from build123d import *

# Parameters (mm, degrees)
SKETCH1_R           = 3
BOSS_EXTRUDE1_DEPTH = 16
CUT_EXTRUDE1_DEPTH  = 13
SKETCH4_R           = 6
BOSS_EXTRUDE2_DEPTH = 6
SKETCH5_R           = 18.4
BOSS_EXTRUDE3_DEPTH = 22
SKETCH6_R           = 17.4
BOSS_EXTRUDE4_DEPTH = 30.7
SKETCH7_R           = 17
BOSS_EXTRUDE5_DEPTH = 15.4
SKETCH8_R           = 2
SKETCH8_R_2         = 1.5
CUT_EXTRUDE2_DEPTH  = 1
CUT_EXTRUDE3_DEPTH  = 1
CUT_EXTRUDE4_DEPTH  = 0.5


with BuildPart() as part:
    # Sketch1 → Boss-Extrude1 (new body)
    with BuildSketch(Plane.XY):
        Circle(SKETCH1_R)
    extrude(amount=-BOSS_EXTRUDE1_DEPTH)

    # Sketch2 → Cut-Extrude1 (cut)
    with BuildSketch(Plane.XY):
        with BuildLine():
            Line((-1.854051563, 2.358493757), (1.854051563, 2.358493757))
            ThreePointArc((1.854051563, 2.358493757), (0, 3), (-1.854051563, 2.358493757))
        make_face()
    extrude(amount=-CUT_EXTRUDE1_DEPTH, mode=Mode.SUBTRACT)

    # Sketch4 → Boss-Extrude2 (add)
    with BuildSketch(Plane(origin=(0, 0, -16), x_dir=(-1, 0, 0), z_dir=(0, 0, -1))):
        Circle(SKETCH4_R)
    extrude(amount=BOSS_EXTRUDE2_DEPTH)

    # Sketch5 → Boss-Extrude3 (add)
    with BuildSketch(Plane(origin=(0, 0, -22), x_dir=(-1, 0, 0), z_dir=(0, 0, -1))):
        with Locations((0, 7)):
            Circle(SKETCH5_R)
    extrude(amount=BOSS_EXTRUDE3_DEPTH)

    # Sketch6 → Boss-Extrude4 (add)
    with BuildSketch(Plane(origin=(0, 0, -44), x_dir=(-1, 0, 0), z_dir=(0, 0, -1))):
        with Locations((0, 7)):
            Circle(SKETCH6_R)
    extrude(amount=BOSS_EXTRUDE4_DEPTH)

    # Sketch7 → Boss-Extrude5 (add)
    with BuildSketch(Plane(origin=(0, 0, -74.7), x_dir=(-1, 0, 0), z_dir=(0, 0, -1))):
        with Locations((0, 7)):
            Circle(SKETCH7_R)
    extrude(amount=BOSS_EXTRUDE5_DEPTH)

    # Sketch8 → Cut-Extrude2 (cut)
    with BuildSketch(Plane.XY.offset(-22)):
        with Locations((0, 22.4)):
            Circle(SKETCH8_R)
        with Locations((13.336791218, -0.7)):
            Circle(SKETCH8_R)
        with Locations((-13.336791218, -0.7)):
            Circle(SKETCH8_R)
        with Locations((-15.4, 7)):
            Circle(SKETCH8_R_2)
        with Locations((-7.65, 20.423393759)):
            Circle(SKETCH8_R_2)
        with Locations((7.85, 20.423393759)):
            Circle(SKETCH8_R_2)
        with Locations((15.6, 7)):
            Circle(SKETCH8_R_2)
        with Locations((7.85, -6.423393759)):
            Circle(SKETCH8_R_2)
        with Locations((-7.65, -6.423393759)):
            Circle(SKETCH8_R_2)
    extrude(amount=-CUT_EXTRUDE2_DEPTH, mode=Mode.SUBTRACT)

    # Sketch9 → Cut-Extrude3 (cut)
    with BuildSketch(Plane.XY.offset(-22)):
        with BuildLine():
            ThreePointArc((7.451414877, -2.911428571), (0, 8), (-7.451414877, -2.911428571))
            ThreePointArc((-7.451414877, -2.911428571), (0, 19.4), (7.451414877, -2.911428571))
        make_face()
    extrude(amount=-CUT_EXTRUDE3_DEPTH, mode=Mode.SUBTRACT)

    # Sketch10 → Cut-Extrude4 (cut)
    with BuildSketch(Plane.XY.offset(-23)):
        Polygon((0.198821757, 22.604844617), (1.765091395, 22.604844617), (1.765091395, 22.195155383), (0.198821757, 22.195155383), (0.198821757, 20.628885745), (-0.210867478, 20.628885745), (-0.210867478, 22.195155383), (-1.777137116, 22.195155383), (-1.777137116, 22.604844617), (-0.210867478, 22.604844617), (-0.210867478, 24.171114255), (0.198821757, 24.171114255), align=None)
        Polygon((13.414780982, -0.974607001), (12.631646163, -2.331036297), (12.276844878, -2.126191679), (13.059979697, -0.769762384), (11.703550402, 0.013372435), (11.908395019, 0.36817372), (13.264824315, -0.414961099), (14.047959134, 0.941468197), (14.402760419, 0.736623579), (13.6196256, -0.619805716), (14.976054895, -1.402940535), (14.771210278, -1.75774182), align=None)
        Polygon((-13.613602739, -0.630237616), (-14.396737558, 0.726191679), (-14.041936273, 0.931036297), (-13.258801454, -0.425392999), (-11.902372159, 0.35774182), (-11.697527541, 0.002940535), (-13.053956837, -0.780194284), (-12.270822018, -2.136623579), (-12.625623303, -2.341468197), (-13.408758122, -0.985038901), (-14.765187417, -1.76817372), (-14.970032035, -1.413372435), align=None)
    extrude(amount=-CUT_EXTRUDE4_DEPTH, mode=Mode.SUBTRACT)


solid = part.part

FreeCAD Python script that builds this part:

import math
import FreeCAD as App
import Part
import Sketcher
from FreeCAD import Vector
Q = App.Units.Quantity


def add_polygon(sketch, points):
    """Adds a closed chain of lines whose ends are joined by coincident constraints."""
    first, n = sketch.GeometryCount, len(points)
    for a, b in zip(points, points[1:] + points[:1]):
        sketch.addGeometry(Part.LineSegment(App.Vector(*a, 0), App.Vector(*b, 0)), False)
    for i in range(n):
        sketch.addConstraint(Sketcher.Constraint("Coincident", first + i, 2, first + (i + 1) % n, 1))

doc = App.newDocument("Part")
body = doc.addObject("PartDesign::Body", "Body")

sketch1 = body.newObject("Sketcher::SketchObject", "Sketch")
sketch1.AttachmentSupport = (doc.getObject("XY_Plane"), [""])
sketch1.MapMode = "FlatFace"
sketch1.addGeometry(Part.Circle(Vector(0, 0, 0), Vector(0, 0, 1), 3), False)
sketch1.addConstraint([
    Sketcher.Constraint("Coincident", 0, 3, -1, 1),
    Sketcher.Constraint("Diameter", 0, Q("6 mm")),
])
pad1 = body.newObject("PartDesign::Pad", "Pad")
pad1.Profile = sketch1
pad1.Length = 16
pad1.Reversed = True

sketch2 = body.newObject("Sketcher::SketchObject", "Sketch001")
sketch2.AttachmentSupport = (doc.getObject("XY_Plane"), [""])
sketch2.MapMode = "FlatFace"
sketch2.addGeometry([
    Part.LineSegment(Vector(-1.9, 2.4, 0), Vector(1.9, 2.4, 0)),
    Part.ArcOfCircle(Part.Circle(Vector(0, 0, 0), Vector(0, 0, 1), 3), math.radians(52), math.radians(128)),
], False)
sketch2.addConstraint([
    Sketcher.Constraint("Coincident", 0, 1, 1, 2),
    Sketcher.Constraint("Coincident", 1, 1, 0, 2),
    Sketcher.Constraint("Horizontal", 0),
    Sketcher.Constraint("Coincident", 1, 3, -1, 1),
    Sketcher.Constraint("Radius", 1, Q("3 mm")),
    Sketcher.Constraint("DistanceX", 0, 1, 0, 2, Q("3.708103 mm")),
])
pocket1 = body.newObject("PartDesign::Pocket", "Pocket")
pocket1.Profile = sketch2
pocket1.Length = 13

sketch3 = body.newObject("Sketcher::SketchObject", "Sketch002")
sketch3.AttachmentSupport = (doc.getObject("XY_Plane"), [""])
sketch3.MapMode = "FlatFace"
sketch3.AttachmentOffset = App.Placement(Vector(0, 0, -16), App.Rotation())
sketch3.addGeometry(Part.Circle(Vector(0, 0, 0), Vector(0, 0, 1), 6), False)
sketch3.addConstraint([
    Sketcher.Constraint("Coincident", 0, 3, -1, 1),
    Sketcher.Constraint("Diameter", 0, Q("12 mm")),
])
pad2 = body.newObject("PartDesign::Pad", "Pad001")
pad2.Profile = sketch3
pad2.Length = 6
pad2.Reversed = True

sketch4 = body.newObject("Sketcher::SketchObject", "Sketch003")
sketch4.AttachmentSupport = (doc.getObject("XY_Plane"), [""])
sketch4.MapMode = "FlatFace"
sketch4.AttachmentOffset = App.Placement(Vector(0, 0, -22), App.Rotation())
sketch4.addGeometry(Part.Circle(Vector(0, 7, 0), Vector(0, 0, 1), 18), False)
sketch4.addConstraint([
    Sketcher.Constraint("PointOnObject", 0, 3, -2),
    Sketcher.Constraint("Diameter", 0, Q("36.8 mm")),
    Sketcher.Constraint("DistanceY", -1, 1, 0, 3, Q("7 mm")),
])
pad3 = body.newObject("PartDesign::Pad", "Pad002")
pad3.Profile = sketch4
pad3.Length = 22
pad3.Reversed = True

sketch5 = body.newObject("Sketcher::SketchObject", "Sketch004")
sketch5.AttachmentSupport = (doc.getObject("XY_Plane"), [""])
sketch5.MapMode = "FlatFace"
sketch5.AttachmentOffset = App.Placement(Vector(0, 0, -44), App.Rotation())
sketch5.addGeometry(Part.Circle(Vector(0, 7, 0), Vector(0, 0, 1), 17), False)
sketch5.addConstraint([
    Sketcher.Constraint("PointOnObject", 0, 3, -2),
    Sketcher.Constraint("Diameter", 0, Q("34.8 mm")),
    Sketcher.Constraint("DistanceY", -1, 1, 0, 3, Q("7 mm")),
])
pad4 = body.newObject("PartDesign::Pad", "Pad003")
pad4.Profile = sketch5
pad4.Length = 30.7
pad4.Reversed = True

sketch6 = body.newObject("Sketcher::SketchObject", "Sketch005")
sketch6.AttachmentSupport = (doc.getObject("XY_Plane"), [""])
sketch6.MapMode = "FlatFace"
sketch6.AttachmentOffset = App.Placement(Vector(0, 0, -74.7), App.Rotation())
sketch6.addGeometry(Part.Circle(Vector(0, 7, 0), Vector(0, 0, 1), 17), False)
sketch6.addConstraint([
    Sketcher.Constraint("PointOnObject", 0, 3, -2),
    Sketcher.Constraint("Diameter", 0, Q("34 mm")),
    Sketcher.Constraint("DistanceY", -1, 1, 0, 3, Q("7 mm")),
])
pad5 = body.newObject("PartDesign::Pad", "Pad004")
pad5.Profile = sketch6
pad5.Length = 15.4
pad5.Reversed = True

sketch7 = body.newObject("Sketcher::SketchObject", "Sketch006")
sketch7.AttachmentSupport = (doc.getObject("XY_Plane"), [""])
sketch7.MapMode = "FlatFace"
sketch7.AttachmentOffset = App.Placement(Vector(0, 0, -22), App.Rotation())
sketch7.addGeometry([
    Part.Circle(Vector(0, 22.4, 0), Vector(0, 0, 1), 2),
    Part.Circle(Vector(13.3, -0.7, 0), Vector(0, 0, 1), 2),
    Part.Circle(Vector(-13.3, -0.7, 0), Vector(0, 0, 1), 2),
    Part.Circle(Vector(-15.4, 7, 0), Vector(0, 0, 1), 1.5),
    Part.Circle(Vector(-7.7, 20.4, 0), Vector(0, 0, 1), 1.5),
    Part.Circle(Vector(7.8, 20.4, 0), Vector(0, 0, 1), 1.5),
    Part.Circle(Vector(15.6, 7, 0), Vector(0, 0, 1), 1.5),
    Part.Circle(Vector(7.8, -6.4, 0), Vector(0, 0, 1), 1.5),
    Part.Circle(Vector(-7.7, -6.4, 0), Vector(0, 0, 1), 1.5),
], False)
sketch7.addConstraint([
    Sketcher.Constraint("Equal", 0, 1),
    Sketcher.Constraint("Equal", 1, 2),
    Sketcher.Constraint("Equal", 3, 4),
    Sketcher.Constraint("Equal", 4, 5),
    Sketcher.Constraint("Equal", 5, 6),
    Sketcher.Constraint("Equal", 6, 7),
    Sketcher.Constraint("Equal", 7, 8),
    Sketcher.Constraint("Symmetric", 1, 3, 2, 3, -2),
    Sketcher.Constraint("PointOnObject", 0, 3, -2),
    Sketcher.Constraint("Horizontal", 4, 3, 5, 3),
    Sketcher.Constraint("Horizontal", 3, 3, 6, 3),
    Sketcher.Constraint("Horizontal", 7, 3, 8, 3),
    Sketcher.Constraint("Vertical", 5, 3, 7, 3),
    Sketcher.Constraint("Vertical", 4, 3, 8, 3),
    Sketcher.Constraint("Diameter", 0, Q("4 mm")),
    Sketcher.Constraint("Diameter", 3, Q("3 mm")),
    Sketcher.Constraint("DistanceY", -1, 1, 3, 3, Q("7 mm")),
    Sketcher.Constraint("DistanceY", -1, 1, 0, 3, Q("22.4 mm")),
    Sketcher.Constraint("DistanceY", 1, 3, -1, 1, Q("0.7 mm")),
    Sketcher.Constraint("DistanceX", 3, 3, -1, 1, Q("15.4 mm")),
    Sketcher.Constraint("DistanceX", -1, 1, 6, 3, Q("15.6 mm")),
    Sketcher.Constraint("DistanceX", 4, 3, 5, 3, Q("15.5 mm")),
    Sketcher.Constraint("DistanceX", 4, 3, -1, 1, Q("7.65 mm")),
    Sketcher.Constraint("DistanceX", -1, 1, 1, 3, Q("13.336791 mm")),
    Sketcher.Constraint("DistanceY", -1, 1, 4, 3, Q("20.423394 mm")),
    Sketcher.Constraint("DistanceY", 7, 3, -1, 1, Q("6.423394 mm")),
])
pocket2 = body.newObject("PartDesign::Pocket", "Pocket001")
pocket2.Profile = sketch7
pocket2.Length = 1

sketch8 = body.newObject("Sketcher::SketchObject", "Sketch007")
sketch8.AttachmentSupport = (doc.getObject("XY_Plane"), [""])
sketch8.MapMode = "FlatFace"
sketch8.AttachmentOffset = App.Placement(Vector(0, 0, -22), App.Rotation())
sketch8.addGeometry([
    Part.ArcOfCircle(Part.Circle(Vector(0, 0, 0), Vector(0, 0, 1), 8), math.radians(-21), math.radians(201)),
    Part.ArcOfCircle(Part.Circle(Vector(0, 7, 0), Vector(0, 0, 1), 12), math.radians(-53), math.radians(233)),
], False)
sketch8.addConstraint([
    Sketcher.Constraint("Coincident", 0, 1, 1, 1),
    Sketcher.Constraint("Coincident", 1, 2, 0, 2),
    Sketcher.Constraint("Coincident", 0, 3, -1, 1),
    Sketcher.Constraint("PointOnObject", 1, 3, -2),
    Sketcher.Constraint("Radius", 0, Q("8 mm")),
    Sketcher.Constraint("Radius", 1, Q("12.4 mm")),
    Sketcher.Constraint("DistanceY", -1, 1, 1, 3, Q("7 mm")),
])
pocket3 = body.newObject("PartDesign::Pocket", "Pocket002")
pocket3.Profile = sketch8
pocket3.Length = 1

sketch9 = body.newObject("Sketcher::SketchObject", "Sketch008")
sketch9.AttachmentSupport = (doc.getObject("XY_Plane"), [""])
sketch9.MapMode = "FlatFace"
sketch9.AttachmentOffset = App.Placement(Vector(0, 0, -23), App.Rotation())
add_polygon(sketch9, [(1.77, 22.6), (0.2, 22.6), (0.2, 24.17), (-0.21, 24.17), (-0.21, 22.6), (-1.78, 22.6), (-1.78, 22.2), (-0.21, 22.2), (-0.21, 20.63), (0.2, 20.63), (0.2, 22.2), (1.77, 22.2)])
add_polygon(sketch9, [(12.63, -2.33), (13.41, -0.97), (14.77, -1.76), (14.98, -1.4), (13.62, -0.62), (14.4, 0.74), (14.05, 0.94), (13.26, -0.41), (11.91, 0.37), (11.7, 0.01), (13.06, -0.77), (12.28, -2.13)])
add_polygon(sketch9, [(-14.4, 0.73), (-13.61, -0.63), (-14.97, -1.41), (-14.77, -1.77), (-13.41, -0.99), (-12.63, -2.34), (-12.27, -2.14), (-13.05, -0.78), (-11.7, 0), (-11.9, 0.36), (-13.26, -0.43), (-14.04, 0.93)])
sketch9.addConstraint([
    Sketcher.Constraint("Horizontal", 0),
    Sketcher.Constraint("Vertical", 1),
    Sketcher.Constraint("Horizontal", 2),
    Sketcher.Constraint("Vertical", 3),
    Sketcher.Constraint("Horizontal", 4),
    Sketcher.Constraint("Vertical", 5),
    Sketcher.Constraint("Horizontal", 6),
    Sketcher.Constraint("Vertical", 7),
    Sketcher.Constraint("Horizontal", 8),
    Sketcher.Constraint("Vertical", 9),
    Sketcher.Constraint("Horizontal", 10),
    Sketcher.Constraint("Vertical", 11),
    Sketcher.Constraint("Perpendicular", 12, 13),
    Sketcher.Constraint("Perpendicular", 13, 14),
    Sketcher.Constraint("Perpendicular", 14, 15),
    Sketcher.Constraint("Perpendicular", 15, 16),
    Sketcher.Constraint("Perpendicular", 16, 17),
    Sketcher.Constraint("Perpendicular", 17, 18),
    Sketcher.Constraint("Perpendicular", 18, 19),
    Sketcher.Constraint("Perpendicular", 19, 20),
    Sketcher.Constraint("Perpendicular", 20, 21),
    Sketcher.Constraint("Perpendicular", 21, 22),
    Sketcher.Constraint("Perpendicular", 22, 23),
    Sketcher.Constraint("Perpendicular", 24, 25),
    Sketcher.Constraint("Perpendicular", 25, 26),
    Sketcher.Constraint("Perpendicular", 26, 27),
    Sketcher.Constraint("Perpendicular", 27, 28),
    Sketcher.Constraint("Perpendicular", 28, 29),
    Sketcher.Constraint("Perpendicular", 29, 30),
    Sketcher.Constraint("Perpendicular", 30, 31),
    Sketcher.Constraint("Perpendicular", 31, 32),
    Sketcher.Constraint("Perpendicular", 32, 33),
    Sketcher.Constraint("Perpendicular", 33, 34),
    Sketcher.Constraint("Perpendicular", 34, 35),
    Sketcher.Constraint("Horizontal", 0, 2, 3, 2),
    Sketcher.Constraint("Horizontal", 6, 2, 9, 2),
    Sketcher.Constraint("Vertical", 3, 2, 6, 2),
    Sketcher.Constraint("Vertical", 1, 2, 8, 2),
    Sketcher.Constraint("Equal", 0, 4),
    Sketcher.Constraint("Equal", 10, 1),
    Sketcher.Constraint("Equal", 8, 5),
    Sketcher.Constraint("Equal", 3, 7),
    Sketcher.Constraint("Equal", 12, 13),
    Sketcher.Constraint("Equal", 13, 15),
    Sketcher.Constraint("Equal", 15, 16),
    Sketcher.Constraint("Equal", 14, 17),
    Sketcher.Constraint("Equal", 16, 18),
    Sketcher.Constraint("Equal", 18, 19),
    Sketcher.Constraint("Equal", 17, 20),
    Sketcher.Constraint("Equal", 19, 21),
    Sketcher.Constraint("Equal", 22, 24),
    Sketcher.Constraint("Equal", 24, 25),
    Sketcher.Constraint("Equal", 23, 26),
    Sketcher.Constraint("Equal", 25, 27),
    Sketcher.Constraint("Equal", 27, 28),
    Sketcher.Constraint("Equal", 26, 29),
    Sketcher.Constraint("Equal", 28, 30),
    Sketcher.Constraint("Equal", 30, 31),
    Sketcher.Constraint("Equal", 29, 32),
    Sketcher.Constraint("Equal", 31, 33),
    Sketcher.Constraint("Angle", 12, Q("60 deg")),
    Sketcher.Constraint("Angle", 24, Q("-60 deg")),
    Sketcher.Constraint("DistanceX", 0, 2, 0, 1, Q("1.56627 mm")),
    Sketcher.Constraint("DistanceX", 2, 2, 2, 1, Q("0.409689 mm")),
    Sketcher.Constraint("DistanceX", 33, 2, -1, 1, Q("13.258801 mm")),
    Sketcher.Constraint("DistanceY", 13, 2, 14, 2, Q("0.354801 mm")),
    Sketcher.Constraint("Distance", 12, Q("1.56627 mm")),
    Sketcher.Constraint("DistanceX", -1, 1, 0, 2, Q("0.198822 mm")),
    Sketcher.Constraint("DistanceX", -1, 1, 12, 2, Q("13.414781 mm")),
    Sketcher.Constraint("DistanceY", 13, 2, -1, 1, Q("1.757742 mm")),
    Sketcher.Constraint("DistanceY", 27, 2, -1, 1, Q("0.985039 mm")),
    Sketcher.Constraint("DistanceY", 12, 2, 11, 2, Q("23.579452 mm")),
])
pocket4 = body.newObject("PartDesign::Pocket", "Pocket003")
pocket4.Profile = sketch9
pocket4.Length = 0.5

doc.recompute()
